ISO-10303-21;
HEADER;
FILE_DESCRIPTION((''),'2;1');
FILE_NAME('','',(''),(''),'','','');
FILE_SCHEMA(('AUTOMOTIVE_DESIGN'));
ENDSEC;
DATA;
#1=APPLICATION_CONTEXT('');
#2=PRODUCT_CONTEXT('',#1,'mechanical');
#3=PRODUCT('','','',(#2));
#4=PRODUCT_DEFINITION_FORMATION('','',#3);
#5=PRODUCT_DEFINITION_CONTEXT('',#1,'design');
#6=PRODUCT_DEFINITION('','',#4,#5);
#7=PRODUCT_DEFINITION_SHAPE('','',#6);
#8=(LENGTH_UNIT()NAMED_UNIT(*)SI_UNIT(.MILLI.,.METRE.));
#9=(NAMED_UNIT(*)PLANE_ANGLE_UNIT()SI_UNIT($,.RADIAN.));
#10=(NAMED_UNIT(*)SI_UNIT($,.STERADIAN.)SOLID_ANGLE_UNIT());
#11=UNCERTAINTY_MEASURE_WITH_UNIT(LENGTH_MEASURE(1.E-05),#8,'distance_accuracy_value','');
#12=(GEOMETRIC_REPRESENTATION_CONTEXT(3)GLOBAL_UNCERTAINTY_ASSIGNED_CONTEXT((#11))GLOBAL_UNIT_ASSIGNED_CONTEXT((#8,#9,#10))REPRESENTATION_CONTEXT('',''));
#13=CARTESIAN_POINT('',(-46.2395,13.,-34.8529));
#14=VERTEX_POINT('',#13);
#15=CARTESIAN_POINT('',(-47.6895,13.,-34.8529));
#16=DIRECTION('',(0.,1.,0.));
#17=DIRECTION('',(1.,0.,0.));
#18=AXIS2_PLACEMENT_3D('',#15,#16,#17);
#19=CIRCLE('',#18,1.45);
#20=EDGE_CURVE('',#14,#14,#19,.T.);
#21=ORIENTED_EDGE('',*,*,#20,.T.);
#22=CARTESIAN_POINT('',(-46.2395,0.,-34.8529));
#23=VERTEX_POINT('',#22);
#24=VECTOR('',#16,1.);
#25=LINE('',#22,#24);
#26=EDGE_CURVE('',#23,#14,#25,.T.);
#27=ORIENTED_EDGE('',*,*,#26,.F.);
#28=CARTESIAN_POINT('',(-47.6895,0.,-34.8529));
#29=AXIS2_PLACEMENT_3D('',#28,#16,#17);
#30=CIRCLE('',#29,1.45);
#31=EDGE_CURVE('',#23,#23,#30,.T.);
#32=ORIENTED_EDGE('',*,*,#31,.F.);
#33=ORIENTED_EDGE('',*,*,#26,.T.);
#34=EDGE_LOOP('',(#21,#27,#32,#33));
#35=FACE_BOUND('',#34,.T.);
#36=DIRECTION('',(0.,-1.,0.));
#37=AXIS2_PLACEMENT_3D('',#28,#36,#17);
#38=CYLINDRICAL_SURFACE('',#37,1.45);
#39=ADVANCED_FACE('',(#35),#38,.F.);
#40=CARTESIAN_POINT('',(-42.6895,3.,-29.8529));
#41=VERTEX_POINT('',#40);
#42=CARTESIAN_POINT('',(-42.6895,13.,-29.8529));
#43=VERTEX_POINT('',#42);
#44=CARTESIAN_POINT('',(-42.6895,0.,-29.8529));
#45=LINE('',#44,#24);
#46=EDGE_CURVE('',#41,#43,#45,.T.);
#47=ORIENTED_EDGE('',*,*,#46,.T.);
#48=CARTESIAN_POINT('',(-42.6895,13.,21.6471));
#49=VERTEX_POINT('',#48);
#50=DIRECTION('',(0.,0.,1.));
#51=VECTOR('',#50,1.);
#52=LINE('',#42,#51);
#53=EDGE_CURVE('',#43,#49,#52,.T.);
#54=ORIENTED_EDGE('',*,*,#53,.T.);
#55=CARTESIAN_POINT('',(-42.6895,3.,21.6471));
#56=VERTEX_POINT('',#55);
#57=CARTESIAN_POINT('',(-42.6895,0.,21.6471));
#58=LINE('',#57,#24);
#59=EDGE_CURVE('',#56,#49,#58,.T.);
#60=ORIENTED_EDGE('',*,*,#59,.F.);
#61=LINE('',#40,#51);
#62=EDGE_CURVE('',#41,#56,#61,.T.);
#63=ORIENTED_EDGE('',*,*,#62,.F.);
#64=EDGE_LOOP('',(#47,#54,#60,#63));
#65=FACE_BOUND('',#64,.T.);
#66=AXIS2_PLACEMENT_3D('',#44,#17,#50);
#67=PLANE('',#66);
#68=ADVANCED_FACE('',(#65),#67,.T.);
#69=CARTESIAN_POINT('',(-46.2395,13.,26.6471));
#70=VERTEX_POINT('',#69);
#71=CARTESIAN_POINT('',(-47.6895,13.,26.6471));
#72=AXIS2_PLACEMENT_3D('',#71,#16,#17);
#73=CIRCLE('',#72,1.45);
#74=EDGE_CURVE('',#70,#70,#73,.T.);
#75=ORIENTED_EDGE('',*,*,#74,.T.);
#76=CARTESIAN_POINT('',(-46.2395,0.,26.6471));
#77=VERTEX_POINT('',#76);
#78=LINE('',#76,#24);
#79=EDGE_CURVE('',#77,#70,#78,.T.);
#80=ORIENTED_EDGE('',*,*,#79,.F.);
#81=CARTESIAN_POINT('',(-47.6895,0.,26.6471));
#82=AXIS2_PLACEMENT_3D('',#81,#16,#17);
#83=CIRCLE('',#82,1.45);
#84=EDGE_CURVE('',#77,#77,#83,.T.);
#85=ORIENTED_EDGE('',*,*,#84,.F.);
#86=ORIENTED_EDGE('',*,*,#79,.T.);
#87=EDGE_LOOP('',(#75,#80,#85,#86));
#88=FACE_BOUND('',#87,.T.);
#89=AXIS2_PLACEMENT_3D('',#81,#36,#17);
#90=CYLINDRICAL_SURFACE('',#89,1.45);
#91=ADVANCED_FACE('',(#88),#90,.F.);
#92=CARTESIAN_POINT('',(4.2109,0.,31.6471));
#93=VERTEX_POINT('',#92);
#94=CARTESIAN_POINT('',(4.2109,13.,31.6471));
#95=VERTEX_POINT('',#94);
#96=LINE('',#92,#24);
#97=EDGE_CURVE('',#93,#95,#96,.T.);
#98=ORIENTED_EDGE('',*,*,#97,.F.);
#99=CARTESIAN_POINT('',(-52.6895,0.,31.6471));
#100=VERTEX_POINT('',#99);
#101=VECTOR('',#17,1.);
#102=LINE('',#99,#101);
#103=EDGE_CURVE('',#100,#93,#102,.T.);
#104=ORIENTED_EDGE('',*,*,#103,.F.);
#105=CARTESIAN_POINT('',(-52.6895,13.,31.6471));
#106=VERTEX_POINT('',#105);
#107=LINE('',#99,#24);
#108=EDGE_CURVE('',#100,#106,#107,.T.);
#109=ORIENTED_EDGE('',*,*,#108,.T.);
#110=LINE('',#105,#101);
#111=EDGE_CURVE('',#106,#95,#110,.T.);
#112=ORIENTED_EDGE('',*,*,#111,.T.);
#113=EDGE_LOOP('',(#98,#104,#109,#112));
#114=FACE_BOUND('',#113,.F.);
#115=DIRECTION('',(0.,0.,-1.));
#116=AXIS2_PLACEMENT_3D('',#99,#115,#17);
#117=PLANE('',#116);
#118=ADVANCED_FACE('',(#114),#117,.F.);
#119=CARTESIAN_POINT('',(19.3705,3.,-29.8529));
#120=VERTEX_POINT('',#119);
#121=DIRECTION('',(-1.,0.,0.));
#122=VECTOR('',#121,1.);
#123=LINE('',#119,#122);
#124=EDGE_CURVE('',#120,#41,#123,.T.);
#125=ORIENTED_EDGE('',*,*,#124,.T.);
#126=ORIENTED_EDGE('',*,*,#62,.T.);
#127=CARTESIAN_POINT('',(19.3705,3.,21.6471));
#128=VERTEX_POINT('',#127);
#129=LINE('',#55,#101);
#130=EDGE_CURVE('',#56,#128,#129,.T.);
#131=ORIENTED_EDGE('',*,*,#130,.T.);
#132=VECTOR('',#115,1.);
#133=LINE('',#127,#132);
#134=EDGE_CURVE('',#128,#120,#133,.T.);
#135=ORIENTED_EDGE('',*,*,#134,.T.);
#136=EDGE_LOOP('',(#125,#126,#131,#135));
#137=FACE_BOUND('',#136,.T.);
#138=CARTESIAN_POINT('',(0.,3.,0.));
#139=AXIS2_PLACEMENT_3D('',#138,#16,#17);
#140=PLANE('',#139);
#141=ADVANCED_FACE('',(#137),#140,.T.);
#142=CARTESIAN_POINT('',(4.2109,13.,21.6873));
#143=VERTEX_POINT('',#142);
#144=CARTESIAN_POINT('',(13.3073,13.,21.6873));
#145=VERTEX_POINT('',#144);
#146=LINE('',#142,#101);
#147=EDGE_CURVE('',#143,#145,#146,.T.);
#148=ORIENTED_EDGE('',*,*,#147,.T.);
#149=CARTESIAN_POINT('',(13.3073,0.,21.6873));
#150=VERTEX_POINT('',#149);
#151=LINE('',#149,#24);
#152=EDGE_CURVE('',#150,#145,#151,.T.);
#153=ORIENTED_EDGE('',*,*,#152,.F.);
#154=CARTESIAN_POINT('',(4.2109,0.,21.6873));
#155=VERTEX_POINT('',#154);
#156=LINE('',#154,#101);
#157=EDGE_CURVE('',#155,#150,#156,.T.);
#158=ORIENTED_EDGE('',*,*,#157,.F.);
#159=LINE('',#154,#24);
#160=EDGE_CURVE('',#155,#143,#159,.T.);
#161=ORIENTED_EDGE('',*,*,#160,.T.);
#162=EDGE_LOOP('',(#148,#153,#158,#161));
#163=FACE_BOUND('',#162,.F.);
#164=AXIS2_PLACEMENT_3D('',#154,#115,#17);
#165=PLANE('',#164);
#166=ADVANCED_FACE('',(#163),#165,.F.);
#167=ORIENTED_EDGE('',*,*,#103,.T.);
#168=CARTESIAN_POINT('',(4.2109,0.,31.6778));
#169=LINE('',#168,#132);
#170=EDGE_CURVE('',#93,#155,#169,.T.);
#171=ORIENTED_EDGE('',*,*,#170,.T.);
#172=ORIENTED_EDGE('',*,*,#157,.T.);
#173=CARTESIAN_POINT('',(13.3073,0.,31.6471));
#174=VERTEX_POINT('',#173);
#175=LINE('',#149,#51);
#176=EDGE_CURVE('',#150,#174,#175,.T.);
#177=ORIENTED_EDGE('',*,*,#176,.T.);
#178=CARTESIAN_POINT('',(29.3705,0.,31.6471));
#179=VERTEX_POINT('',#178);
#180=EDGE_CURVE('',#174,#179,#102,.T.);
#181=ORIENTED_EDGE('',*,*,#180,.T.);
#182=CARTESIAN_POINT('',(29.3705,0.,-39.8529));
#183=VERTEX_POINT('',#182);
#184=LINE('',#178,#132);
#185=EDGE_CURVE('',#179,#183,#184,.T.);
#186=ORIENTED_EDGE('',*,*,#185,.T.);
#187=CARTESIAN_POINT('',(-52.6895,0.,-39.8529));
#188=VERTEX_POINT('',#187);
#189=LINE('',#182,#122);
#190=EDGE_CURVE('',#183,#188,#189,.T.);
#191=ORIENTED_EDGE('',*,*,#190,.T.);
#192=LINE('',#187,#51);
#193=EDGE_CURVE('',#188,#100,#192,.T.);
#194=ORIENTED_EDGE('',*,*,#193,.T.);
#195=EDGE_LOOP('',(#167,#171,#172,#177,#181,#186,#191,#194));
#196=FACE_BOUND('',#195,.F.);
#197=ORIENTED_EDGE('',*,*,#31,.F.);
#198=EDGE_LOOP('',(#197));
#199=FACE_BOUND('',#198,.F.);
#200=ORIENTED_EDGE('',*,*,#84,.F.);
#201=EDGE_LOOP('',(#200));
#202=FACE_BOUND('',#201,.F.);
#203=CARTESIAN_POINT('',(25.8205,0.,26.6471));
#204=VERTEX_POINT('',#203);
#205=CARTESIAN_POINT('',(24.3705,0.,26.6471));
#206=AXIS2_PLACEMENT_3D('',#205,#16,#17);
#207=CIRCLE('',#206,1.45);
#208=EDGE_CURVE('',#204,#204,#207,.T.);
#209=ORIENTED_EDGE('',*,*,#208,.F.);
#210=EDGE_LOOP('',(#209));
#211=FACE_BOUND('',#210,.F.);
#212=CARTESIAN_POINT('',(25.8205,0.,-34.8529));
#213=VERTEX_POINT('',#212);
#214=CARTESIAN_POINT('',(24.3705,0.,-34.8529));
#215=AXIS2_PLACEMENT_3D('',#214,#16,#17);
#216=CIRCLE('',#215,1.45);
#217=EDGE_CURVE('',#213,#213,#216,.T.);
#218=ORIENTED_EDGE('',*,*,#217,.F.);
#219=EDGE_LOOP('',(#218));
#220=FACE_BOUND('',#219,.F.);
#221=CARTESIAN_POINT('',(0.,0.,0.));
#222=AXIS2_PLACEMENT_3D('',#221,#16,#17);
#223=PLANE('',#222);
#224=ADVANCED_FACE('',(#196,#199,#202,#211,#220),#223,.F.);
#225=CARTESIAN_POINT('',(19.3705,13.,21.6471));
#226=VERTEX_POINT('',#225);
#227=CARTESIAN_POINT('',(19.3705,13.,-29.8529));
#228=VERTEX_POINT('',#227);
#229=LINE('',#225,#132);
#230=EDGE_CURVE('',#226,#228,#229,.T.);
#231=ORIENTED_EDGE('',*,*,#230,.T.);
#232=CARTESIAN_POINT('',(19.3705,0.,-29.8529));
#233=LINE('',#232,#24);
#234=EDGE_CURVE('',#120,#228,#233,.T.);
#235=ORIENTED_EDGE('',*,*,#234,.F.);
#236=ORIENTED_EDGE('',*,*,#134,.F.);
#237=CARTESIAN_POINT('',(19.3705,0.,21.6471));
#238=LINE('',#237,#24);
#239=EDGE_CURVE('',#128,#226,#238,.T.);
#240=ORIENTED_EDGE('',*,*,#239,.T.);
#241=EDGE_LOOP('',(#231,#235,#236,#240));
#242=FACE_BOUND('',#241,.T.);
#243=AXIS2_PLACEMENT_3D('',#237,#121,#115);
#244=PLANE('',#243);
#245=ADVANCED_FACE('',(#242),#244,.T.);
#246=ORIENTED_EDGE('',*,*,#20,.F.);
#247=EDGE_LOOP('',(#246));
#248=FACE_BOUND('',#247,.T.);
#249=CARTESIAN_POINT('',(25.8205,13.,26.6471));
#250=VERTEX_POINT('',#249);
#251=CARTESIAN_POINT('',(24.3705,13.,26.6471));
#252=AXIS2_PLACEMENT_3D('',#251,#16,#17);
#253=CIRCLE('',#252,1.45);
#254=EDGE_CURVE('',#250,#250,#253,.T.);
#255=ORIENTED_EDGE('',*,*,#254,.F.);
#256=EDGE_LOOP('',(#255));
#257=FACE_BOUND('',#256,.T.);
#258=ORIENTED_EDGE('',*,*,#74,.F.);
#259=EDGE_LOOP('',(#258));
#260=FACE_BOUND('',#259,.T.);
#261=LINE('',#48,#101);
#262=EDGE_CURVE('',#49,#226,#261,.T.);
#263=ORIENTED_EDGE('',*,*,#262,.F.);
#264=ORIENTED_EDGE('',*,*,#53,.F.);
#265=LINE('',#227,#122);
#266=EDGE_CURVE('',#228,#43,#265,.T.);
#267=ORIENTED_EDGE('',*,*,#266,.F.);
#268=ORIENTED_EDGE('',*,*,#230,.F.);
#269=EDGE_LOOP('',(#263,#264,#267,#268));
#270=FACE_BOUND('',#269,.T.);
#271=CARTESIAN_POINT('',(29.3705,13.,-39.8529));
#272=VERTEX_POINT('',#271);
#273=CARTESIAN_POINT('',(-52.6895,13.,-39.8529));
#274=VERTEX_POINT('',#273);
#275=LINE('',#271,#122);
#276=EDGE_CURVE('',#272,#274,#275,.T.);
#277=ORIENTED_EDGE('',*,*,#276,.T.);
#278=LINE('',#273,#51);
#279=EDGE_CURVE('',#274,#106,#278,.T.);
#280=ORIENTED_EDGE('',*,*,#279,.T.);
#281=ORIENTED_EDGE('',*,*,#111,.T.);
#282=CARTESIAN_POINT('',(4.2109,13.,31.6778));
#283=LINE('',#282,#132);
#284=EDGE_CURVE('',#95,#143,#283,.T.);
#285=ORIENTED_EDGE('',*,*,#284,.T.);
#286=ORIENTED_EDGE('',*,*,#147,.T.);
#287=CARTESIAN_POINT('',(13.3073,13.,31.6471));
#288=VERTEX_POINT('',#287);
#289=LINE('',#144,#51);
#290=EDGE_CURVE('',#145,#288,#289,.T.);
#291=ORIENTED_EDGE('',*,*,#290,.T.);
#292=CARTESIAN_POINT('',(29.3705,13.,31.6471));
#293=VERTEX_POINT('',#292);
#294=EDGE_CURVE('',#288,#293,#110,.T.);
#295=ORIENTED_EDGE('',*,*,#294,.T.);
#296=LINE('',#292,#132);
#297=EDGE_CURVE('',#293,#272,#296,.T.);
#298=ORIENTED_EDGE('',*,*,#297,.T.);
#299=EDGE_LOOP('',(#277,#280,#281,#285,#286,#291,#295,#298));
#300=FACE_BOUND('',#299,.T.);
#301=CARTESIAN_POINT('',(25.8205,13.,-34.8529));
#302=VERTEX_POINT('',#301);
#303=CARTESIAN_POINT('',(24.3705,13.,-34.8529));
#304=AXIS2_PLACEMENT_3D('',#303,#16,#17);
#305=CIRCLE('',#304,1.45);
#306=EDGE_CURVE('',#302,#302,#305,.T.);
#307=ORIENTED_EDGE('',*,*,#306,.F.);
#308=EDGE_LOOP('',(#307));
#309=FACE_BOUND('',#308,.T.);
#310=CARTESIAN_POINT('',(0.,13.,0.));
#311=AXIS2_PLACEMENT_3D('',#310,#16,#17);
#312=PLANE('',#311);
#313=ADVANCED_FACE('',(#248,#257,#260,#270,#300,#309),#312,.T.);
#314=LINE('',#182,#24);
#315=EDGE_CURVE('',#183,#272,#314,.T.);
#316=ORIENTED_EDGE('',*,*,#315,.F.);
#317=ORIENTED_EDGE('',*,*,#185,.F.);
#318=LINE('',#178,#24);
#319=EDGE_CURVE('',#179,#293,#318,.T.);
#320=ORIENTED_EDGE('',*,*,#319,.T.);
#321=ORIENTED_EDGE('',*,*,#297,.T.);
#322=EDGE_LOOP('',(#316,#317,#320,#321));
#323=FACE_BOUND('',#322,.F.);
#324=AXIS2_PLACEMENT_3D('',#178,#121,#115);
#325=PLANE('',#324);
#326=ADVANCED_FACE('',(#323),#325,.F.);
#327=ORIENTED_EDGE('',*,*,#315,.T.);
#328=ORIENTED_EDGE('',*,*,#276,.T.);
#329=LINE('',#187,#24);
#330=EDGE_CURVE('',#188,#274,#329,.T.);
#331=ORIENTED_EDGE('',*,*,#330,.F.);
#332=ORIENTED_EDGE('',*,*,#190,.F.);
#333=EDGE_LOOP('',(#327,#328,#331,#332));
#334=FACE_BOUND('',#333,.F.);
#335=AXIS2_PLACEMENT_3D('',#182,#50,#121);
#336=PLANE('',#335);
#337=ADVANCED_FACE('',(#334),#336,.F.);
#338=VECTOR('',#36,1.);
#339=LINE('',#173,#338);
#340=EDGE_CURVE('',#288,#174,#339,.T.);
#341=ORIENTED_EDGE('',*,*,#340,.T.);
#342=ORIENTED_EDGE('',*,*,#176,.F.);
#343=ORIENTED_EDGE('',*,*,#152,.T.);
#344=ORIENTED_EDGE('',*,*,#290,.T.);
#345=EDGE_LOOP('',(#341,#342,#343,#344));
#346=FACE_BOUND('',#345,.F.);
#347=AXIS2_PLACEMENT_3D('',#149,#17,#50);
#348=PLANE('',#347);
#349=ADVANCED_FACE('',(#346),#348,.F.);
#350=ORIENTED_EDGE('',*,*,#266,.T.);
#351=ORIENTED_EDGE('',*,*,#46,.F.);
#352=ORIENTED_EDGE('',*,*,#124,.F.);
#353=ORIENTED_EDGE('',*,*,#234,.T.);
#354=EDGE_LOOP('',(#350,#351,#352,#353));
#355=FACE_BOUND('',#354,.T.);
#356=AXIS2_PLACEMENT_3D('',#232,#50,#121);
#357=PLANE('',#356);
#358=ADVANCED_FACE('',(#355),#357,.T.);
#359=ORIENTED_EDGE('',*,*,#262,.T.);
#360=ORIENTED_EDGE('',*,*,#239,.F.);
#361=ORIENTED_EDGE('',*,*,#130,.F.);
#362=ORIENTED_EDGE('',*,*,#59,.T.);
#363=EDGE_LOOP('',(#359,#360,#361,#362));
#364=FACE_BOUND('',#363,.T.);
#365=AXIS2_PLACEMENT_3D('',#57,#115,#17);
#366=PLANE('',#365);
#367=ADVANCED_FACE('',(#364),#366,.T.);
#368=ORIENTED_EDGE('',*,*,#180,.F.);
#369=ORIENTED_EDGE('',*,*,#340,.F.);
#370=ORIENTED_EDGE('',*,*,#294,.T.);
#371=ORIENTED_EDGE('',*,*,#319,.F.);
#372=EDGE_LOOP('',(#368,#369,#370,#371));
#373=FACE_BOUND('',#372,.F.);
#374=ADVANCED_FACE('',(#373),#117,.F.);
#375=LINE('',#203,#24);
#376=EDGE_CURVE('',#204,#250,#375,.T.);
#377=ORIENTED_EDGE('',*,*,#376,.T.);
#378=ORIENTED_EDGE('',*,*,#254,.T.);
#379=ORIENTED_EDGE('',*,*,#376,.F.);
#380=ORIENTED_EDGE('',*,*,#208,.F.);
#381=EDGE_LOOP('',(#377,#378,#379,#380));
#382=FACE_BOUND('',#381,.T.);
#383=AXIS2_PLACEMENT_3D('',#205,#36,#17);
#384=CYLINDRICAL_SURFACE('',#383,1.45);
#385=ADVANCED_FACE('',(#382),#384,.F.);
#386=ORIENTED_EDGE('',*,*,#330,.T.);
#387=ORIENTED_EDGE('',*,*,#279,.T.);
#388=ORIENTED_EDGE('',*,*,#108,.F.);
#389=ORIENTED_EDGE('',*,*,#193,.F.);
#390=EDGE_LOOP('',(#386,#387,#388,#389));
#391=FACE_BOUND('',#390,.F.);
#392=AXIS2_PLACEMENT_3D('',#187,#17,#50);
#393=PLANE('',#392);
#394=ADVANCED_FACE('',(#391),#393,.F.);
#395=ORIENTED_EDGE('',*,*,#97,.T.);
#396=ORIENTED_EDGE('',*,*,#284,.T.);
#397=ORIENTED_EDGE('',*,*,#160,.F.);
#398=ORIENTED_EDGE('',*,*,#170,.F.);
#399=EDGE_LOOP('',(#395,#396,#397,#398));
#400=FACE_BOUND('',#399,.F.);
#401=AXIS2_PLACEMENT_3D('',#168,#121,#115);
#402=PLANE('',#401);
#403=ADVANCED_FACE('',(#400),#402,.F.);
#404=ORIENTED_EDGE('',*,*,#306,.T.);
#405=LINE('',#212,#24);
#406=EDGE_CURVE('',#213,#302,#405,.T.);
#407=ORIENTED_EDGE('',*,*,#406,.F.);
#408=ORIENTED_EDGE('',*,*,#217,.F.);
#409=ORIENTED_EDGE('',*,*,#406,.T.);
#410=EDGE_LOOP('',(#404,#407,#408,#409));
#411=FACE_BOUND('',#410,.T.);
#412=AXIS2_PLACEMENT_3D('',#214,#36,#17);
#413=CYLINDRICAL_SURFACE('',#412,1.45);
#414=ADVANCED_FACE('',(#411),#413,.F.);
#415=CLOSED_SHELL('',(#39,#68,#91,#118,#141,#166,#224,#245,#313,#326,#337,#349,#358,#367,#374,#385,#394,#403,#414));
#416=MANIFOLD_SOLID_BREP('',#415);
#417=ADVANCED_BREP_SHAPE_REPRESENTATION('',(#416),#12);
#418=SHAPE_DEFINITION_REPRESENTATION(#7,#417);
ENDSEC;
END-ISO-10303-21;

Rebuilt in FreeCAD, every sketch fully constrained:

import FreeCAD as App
import Part
import Sketcher


def add_polygon(sketch, points):
    """Adds a closed chain of lines whose ends are joined by coincident constraints."""
    first, n = sketch.GeometryCount, len(points)
    for a, b in zip(points, points[1:] + points[:1]):
        sketch.addGeometry(Part.LineSegment(App.Vector(*a, 0), App.Vector(*b, 0)), False)
    for i in range(n):
        sketch.addConstraint(Sketcher.Constraint("Coincident", first + i, 2, first + (i + 1) % n, 1))

doc = App.newDocument("Part")
body = doc.addObject("PartDesign::Body", "Body")

# Sketch on XZ plane
sketch1 = doc.addObject("Sketcher::SketchObject", "Sketch")
body.addObject(sketch1)
sketch1.AttachmentSupport = (doc.XZ_Plane, [""])
sketch1.MapMode = "FlatFace"
add_polygon(sketch1, [(-52.6895, -39.8529), (-52.6895, 31.6471), (29.3705, 31.6471), (29.3705, -39.8529)])  # lines 0-3
sketch1.addGeometry(Part.Circle(App.Vector(-47.6895, 26.6471, 0), App.Vector(0, 0, 1), 1.45), False)  # 4
sketch1.addGeometry(Part.Circle(App.Vector(24.3705, 26.6471, 0), App.Vector(0, 0, 1), 1.45), False)  # 5
add_polygon(sketch1, [(19.3705, 21.6471), (-42.6895, 21.6471), (-42.6895, -29.8529), (19.3705, -29.8529)])  # lines 6-9
sketch1.addGeometry(Part.Circle(App.Vector(-47.6895, -34.8529, 0), App.Vector(0, 0, 1), 1.45), False)  # 10
sketch1.addGeometry(Part.Circle(App.Vector(24.3705, -34.8529, 0), App.Vector(0, 0, 1), 1.45), False)  # 11
sketch1.addConstraint(Sketcher.Constraint("Vertical", 0))
sketch1.addConstraint(Sketcher.Constraint("Horizontal", 1))
sketch1.addConstraint(Sketcher.Constraint("Vertical", 2))
sketch1.addConstraint(Sketcher.Constraint("Horizontal", 3))
sketch1.addConstraint(Sketcher.Constraint("Horizontal", 6))
sketch1.addConstraint(Sketcher.Constraint("Vertical", 7))
sketch1.addConstraint(Sketcher.Constraint("Horizontal", 8))
sketch1.addConstraint(Sketcher.Constraint("Vertical", 9))
sketch1.addConstraint(Sketcher.Constraint("Equal", 4, 5))
sketch1.addConstraint(Sketcher.Constraint("Equal", 5, 10))
sketch1.addConstraint(Sketcher.Constraint("Equal", 10, 11))
sketch1.addConstraint(Sketcher.Constraint("Horizontal", 4, 3, 5, 3))
sketch1.addConstraint(Sketcher.Constraint("Horizontal", 10, 3, 11, 3))
sketch1.addConstraint(Sketcher.Constraint("Vertical", 4, 3, 10, 3))
sketch1.addConstraint(Sketcher.Constraint("Vertical", 5, 3, 11, 3))
sketch1.addConstraint(Sketcher.Constraint("Diameter", 4, 2.9))
sketch1.addConstraint(Sketcher.Constraint("DistanceY", 7, 2, 7, 1, 51.5))
sketch1.addConstraint(Sketcher.Constraint("DistanceX", 0, 2, 4, 3, 5.0))
sketch1.addConstraint(Sketcher.Constraint("DistanceY", 4, 3, 0, 2, 5.0))
sketch1.addConstraint(Sketcher.Constraint("DistanceX", 5, 3, 1, 2, 5.0))
sketch1.addConstraint(Sketcher.Constraint("DistanceY", 2, 2, 11, 3, 5.0))
sketch1.addConstraint(Sketcher.Constraint("DistanceX", 4, 3, 6, 2, 5.0))
sketch1.addConstraint(Sketcher.Constraint("DistanceY", 6, 2, 4, 3, 5.0))
sketch1.addConstraint(Sketcher.Constraint("DistanceY", 10, 3, 7, 2, 5.0))
sketch1.addConstraint(Sketcher.Constraint("DistanceX", 8, 2, 11, 3, 5.0))
sketch1.addConstraint(Sketcher.Constraint("DistanceX", 6, 2, 6, 1, 62.06))
sketch1.addConstraint(Sketcher.Constraint("DistanceY", -1, 1, 4, 3, 26.647))
sketch1.addConstraint(Sketcher.Constraint("DistanceX", 4, 3, -1, 1, 47.6895))
pad1 = doc.addObject("PartDesign::Pad", "Pad")
body.addObject(pad1)
pad1.Profile = sketch1
pad1.Length = 13
pad1.Reversed = True

# Sketch on XZ plane
sketch2 = doc.addObject("Sketcher::SketchObject", "Sketch001")
body.addObject(sketch2)
sketch2.AttachmentSupport = (doc.XZ_Plane, [""])
sketch2.MapMode = "FlatFace"
add_polygon(sketch2, [(-42.6895, -29.8529), (-42.6895, 21.6471), (19.3705, 21.6471), (19.3705, -29.8529)])  # lines 0-3
sketch2.addConstraint(Sketcher.Constraint("Vertical", 0))
sketch2.addConstraint(Sketcher.Constraint("Horizontal", 1))
sketch2.addConstraint(Sketcher.Constraint("Vertical", 2))
sketch2.addConstraint(Sketcher.Constraint("Horizontal", 3))
sketch2.addConstraint(Sketcher.Constraint("DistanceY", 0, 1, 0, 2, 51.5))
sketch2.addConstraint(Sketcher.Constraint("DistanceX", 1, 1, 1, 2, 62.06))
sketch2.addConstraint(Sketcher.Constraint("DistanceY", -1, 1, 0, 2, 21.647))
sketch2.addConstraint(Sketcher.Constraint("DistanceX", 0, 2, -1, 1, 42.6895))
pad2 = doc.addObject("PartDesign::Pad", "Pad001")
body.addObject(pad2)
pad2.Profile = sketch2
pad2.Length = 3
pad2.Reversed = True

# Sketch on XZ plane
sketch3 = doc.addObject("Sketcher::SketchObject", "Sketch002")
body.addObject(sketch3)
sketch3.AttachmentSupport = (doc.XZ_Plane, [""])
sketch3.MapMode = "FlatFace"
add_polygon(sketch3, [(4.2109, 31.6778), (13.3073, 31.6778), (13.3073, 21.6873), (4.2109, 21.6873)])  # lines 0-3
sketch3.addConstraint(Sketcher.Constraint("Horizontal", 0))
sketch3.addConstraint(Sketcher.Constraint("Vertical", 1))
sketch3.addConstraint(Sketcher.Constraint("Horizontal", 2))
sketch3.addConstraint(Sketcher.Constraint("Vertical", 3))
sketch3.addConstraint(Sketcher.Constraint("DistanceX", 0, 1, 0, 2, 9.0964))
sketch3.addConstraint(Sketcher.Constraint("DistanceY", 1, 2, 1, 1, 9.9905))
sketch3.addConstraint(Sketcher.Constraint("DistanceX", -1, 1, 2, 2, 4.211))
sketch3.addConstraint(Sketcher.Constraint("DistanceY", -1, 1, 0, 2, 31.6778))
pocket1 = doc.addObject("PartDesign::Pocket", "Pocket")
body.addObject(pocket1)
pocket1.Profile = sketch3
pocket1.Length = 13

doc.recompute()
